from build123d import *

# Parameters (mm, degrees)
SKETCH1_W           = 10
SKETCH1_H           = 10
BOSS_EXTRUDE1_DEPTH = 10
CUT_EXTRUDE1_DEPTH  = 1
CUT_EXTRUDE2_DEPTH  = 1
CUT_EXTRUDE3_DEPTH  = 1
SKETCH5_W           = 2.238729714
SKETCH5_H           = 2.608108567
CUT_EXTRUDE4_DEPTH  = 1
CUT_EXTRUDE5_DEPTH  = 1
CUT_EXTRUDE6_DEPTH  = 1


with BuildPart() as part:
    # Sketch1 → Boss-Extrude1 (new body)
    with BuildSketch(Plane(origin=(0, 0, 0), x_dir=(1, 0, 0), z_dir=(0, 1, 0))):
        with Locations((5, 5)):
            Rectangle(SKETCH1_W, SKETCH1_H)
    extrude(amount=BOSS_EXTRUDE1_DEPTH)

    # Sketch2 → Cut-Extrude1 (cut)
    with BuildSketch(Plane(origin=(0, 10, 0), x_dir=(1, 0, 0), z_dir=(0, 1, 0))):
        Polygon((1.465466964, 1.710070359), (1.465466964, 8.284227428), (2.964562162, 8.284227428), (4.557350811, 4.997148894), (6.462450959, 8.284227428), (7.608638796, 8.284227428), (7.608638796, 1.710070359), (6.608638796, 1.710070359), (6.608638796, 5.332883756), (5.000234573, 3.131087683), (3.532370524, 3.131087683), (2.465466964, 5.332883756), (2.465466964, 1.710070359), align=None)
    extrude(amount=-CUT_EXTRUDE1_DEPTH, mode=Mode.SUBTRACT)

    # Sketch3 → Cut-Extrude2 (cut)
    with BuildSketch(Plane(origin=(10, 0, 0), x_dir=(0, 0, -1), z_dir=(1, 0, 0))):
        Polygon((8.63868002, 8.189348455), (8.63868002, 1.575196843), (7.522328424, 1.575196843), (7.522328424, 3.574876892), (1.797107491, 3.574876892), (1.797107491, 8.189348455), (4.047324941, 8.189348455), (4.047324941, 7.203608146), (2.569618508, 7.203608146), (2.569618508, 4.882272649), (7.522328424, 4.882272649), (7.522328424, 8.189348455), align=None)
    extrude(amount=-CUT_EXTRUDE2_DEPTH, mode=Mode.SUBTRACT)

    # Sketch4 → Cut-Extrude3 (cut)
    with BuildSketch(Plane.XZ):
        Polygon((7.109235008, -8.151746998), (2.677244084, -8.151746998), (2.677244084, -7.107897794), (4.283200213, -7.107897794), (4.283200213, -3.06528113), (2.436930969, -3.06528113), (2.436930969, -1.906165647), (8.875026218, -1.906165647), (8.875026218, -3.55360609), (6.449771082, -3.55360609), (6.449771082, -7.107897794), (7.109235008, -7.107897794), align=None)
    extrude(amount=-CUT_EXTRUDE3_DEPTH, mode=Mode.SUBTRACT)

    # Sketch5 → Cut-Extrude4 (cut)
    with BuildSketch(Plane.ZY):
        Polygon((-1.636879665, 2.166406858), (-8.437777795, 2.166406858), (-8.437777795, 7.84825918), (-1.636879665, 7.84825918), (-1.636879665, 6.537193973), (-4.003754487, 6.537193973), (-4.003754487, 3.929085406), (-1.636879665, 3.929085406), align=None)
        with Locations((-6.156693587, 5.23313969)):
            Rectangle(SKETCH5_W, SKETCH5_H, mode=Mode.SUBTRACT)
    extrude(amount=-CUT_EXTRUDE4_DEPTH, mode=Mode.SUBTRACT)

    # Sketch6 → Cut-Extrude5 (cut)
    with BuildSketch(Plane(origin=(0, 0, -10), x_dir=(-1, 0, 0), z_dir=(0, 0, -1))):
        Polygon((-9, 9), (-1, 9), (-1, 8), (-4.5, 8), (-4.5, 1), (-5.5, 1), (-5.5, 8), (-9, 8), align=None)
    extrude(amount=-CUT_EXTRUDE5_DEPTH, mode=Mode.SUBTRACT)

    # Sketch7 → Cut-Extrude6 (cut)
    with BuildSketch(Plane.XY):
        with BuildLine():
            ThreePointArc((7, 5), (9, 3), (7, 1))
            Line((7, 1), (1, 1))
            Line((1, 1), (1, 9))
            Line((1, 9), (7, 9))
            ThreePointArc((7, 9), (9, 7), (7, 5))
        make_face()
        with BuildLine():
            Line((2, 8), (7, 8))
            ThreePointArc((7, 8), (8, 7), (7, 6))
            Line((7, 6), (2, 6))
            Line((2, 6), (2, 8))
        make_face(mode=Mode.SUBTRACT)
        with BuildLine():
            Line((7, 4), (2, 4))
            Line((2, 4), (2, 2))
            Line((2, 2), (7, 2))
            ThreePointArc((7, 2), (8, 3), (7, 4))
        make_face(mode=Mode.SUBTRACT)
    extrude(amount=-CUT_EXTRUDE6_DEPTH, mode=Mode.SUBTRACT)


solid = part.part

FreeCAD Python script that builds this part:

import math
import FreeCAD as App
import Part
import Sketcher
Q = App.Units.Quantity


def add_polygon(sketch, points):
    """Adds a closed chain of lines whose ends are joined by coincident constraints."""
    first, n = sketch.GeometryCount, len(points)
    for a, b in zip(points, points[1:] + points[:1]):
        sketch.addGeometry(Part.LineSegment(App.Vector(*a, 0), App.Vector(*b, 0)), False)
    for i in range(n):
        sketch.addConstraint(Sketcher.Constraint("Coincident", first + i, 2, first + (i + 1) % n, 1))

doc = App.newDocument("Part")
body = doc.addObject("PartDesign::Body", "Body")

# Sketch on XZ plane
sketch1 = doc.addObject("Sketcher::SketchObject", "Sketch")
body.addObject(sketch1)
sketch1.AttachmentSupport = (doc.XZ_Plane, [""])
sketch1.MapMode = "FlatFace"
add_polygon(sketch1, [(0, -10), (0, 0), (10, 0), (10, -10)])  # lines 0-3
sketch1.addConstraint(Sketcher.Constraint("Vertical", 0))
sketch1.addConstraint(Sketcher.Constraint("Horizontal", 1))
sketch1.addConstraint(Sketcher.Constraint("Vertical", 2))
sketch1.addConstraint(Sketcher.Constraint("Horizontal", 3))
sketch1.addConstraint(Sketcher.Constraint("Coincident", 0, 2, -1, 1))
sketch1.addConstraint(Sketcher.Constraint("Equal", 3, 0))
sketch1.addConstraint(Sketcher.Constraint("DistanceX", 1, 1, 1, 2, Q("10 mm")))
pad1 = doc.addObject("PartDesign::Pad", "Pad")
body.addObject(pad1)
pad1.Profile = sketch1
pad1.Length = 10
pad1.Reversed = True

# Sketch on XZ plane
sketch2 = doc.addObject("Sketcher::SketchObject", "Sketch001")
body.addObject(sketch2)
sketch2.AttachmentSupport = (doc.XZ_Plane, [""])
sketch2.MapMode = "FlatFace"
sketch2.AttachmentOffset = App.Placement(App.Vector(0, 0, -10), App.Rotation())
add_polygon(sketch2, [(1.5, -8.3), (1.5, -1.7), (2.5, -1.7), (2.5, -5.3), (3.5, -3.1), (5, -3.1), (6.6, -5.3), (6.6, -1.7), (7.6, -1.7), (7.6, -8.3), (6.5, -8.3), (4.6, -5), (3, -8.3)])  # lines 0-12
sketch2.addConstraint(Sketcher.Constraint("Vertical", 0))
sketch2.addConstraint(Sketcher.Constraint("Horizontal", 1))
sketch2.addConstraint(Sketcher.Constraint("Vertical", 2))
sketch2.addConstraint(Sketcher.Constraint("Horizontal", 4))
sketch2.addConstraint(Sketcher.Constraint("Vertical", 6))
sketch2.addConstraint(Sketcher.Constraint("Horizontal", 7))
sketch2.addConstraint(Sketcher.Constraint("Vertical", 8))
sketch2.addConstraint(Sketcher.Constraint("Horizontal", 9))
sketch2.addConstraint(Sketcher.Constraint("Horizontal", 12))
sketch2.addConstraint(Sketcher.Constraint("Parallel", 3, 11))
sketch2.addConstraint(Sketcher.Constraint("Horizontal", 2, 2, 5, 2))
sketch2.addConstraint(Sketcher.Constraint("Horizontal", 1, 2, 6, 2))
sketch2.addConstraint(Sketcher.Constraint("Horizontal", 9, 2, 11, 2))
sketch2.addConstraint(Sketcher.Constraint("Equal", 1, 7))
sketch2.addConstraint(Sketcher.Constraint("DistanceX", 1, 1, 1, 2, Q("1 mm")))
sketch2.addConstraint(Sketcher.Constraint("DistanceX", 10, 2, 9, 2, Q("1.9051 mm")))
sketch2.addConstraint(Sketcher.Constraint("Distance", 3, Q("2.446669 mm")))
sketch2.addConstraint(Sketcher.Constraint("Distance", 10, Q("3.799249 mm")))
sketch2.addConstraint(Sketcher.Constraint("Distance", 11, Q("3.652651 mm")))
sketch2.addConstraint(Sketcher.Constraint("DistanceX", 4, 1, 4, 2, Q("1.467864 mm")))
sketch2.addConstraint(Sketcher.Constraint("DistanceX", 9, 2, 9, 1, Q("1.146188 mm")))
sketch2.addConstraint(Sketcher.Constraint("DistanceX", 12, 2, 12, 1, Q("1.499095 mm")))
sketch2.addConstraint(Sketcher.Constraint("DistanceY", 0, 1, 0, 2, Q("6.574157 mm")))
sketch2.addConstraint(Sketcher.Constraint("DistanceY", 2, 2, 2, 1, Q("3.622813 mm")))
sketch2.addConstraint(Sketcher.Constraint("DistanceY", 0, 2, -1, 1, Q("1.71007 mm")))
sketch2.addConstraint(Sketcher.Constraint("DistanceX", -1, 1, 3, 2, Q("3.532371 mm")))
pocket1 = doc.addObject("PartDesign::Pocket", "Pocket")
body.addObject(pocket1)
pocket1.Profile = sketch2
pocket1.Length = 1
pocket1.Reversed = True

# Sketch on YZ plane
sketch3 = doc.addObject("Sketcher::SketchObject", "Sketch002")
body.addObject(sketch3)
sketch3.AttachmentSupport = (doc.YZ_Plane, [""])
sketch3.MapMode = "FlatFace"
sketch3.AttachmentOffset = App.Placement(App.Vector(0, 0, 10), App.Rotation())
add_polygon(sketch3, [(1.6, -8.6), (8.2, -8.6), (8.2, -7.5), (4.9, -7.5), (4.9, -2.6), (7.2, -2.6), (7.2, -4), (8.2, -4), (8.2, -1.8), (3.6, -1.8), (3.6, -7.5), (1.6, -7.5)])  # lines 0-11
sketch3.addConstraint(Sketcher.Constraint("Horizontal", 0))
sketch3.addConstraint(Sketcher.Constraint("Vertical", 1))
sketch3.addConstraint(Sketcher.Constraint("Horizontal", 2))
sketch3.addConstraint(Sketcher.Constraint("Vertical", 3))
sketch3.addConstraint(Sketcher.Constraint("Horizontal", 4))
sketch3.addConstraint(Sketcher.Constraint("Vertical", 5))
sketch3.addConstraint(Sketcher.Constraint("Horizontal", 6))
sketch3.addConstraint(Sketcher.Constraint("Vertical", 7))
sketch3.addConstraint(Sketcher.Constraint("Horizontal", 8))
sketch3.addConstraint(Sketcher.Constraint("Vertical", 9))
sketch3.addConstraint(Sketcher.Constraint("Horizontal", 10))
sketch3.addConstraint(Sketcher.Constraint("Vertical", 11))
sketch3.addConstraint(Sketcher.Constraint("Horizontal", 2, 2, 9, 2))
sketch3.addConstraint(Sketcher.Constraint("Vertical", 1, 2, 6, 2))
sketch3.addConstraint(Sketcher.Constraint("DistanceX", 0, 1, 0, 2, Q("6.614152 mm")))
sketch3.addConstraint(Sketcher.Constraint("DistanceX", 6, 1, 6, 2, Q("0.98574 mm")))
sketch3.addConstraint(Sketcher.Constraint("DistanceX", 8, 2, 8, 1, Q("4.614472 mm")))
sketch3.addConstraint(Sketcher.Constraint("DistanceY", 1, 1, 1, 2, Q("1.116352 mm")))
sketch3.addConstraint(Sketcher.Constraint("DistanceY", 3, 1, 3, 2, Q("4.95271 mm")))
sketch3.addConstraint(Sketcher.Constraint("DistanceY", 9, 2, 9, 1, Q("5.725221 mm")))
sketch3.addConstraint(Sketcher.Constraint("DistanceX", 2, 2, 2, 1, Q("3.307076 mm")))
sketch3.addConstraint(Sketcher.Constraint("DistanceY", 5, 2, 5, 1, Q("1.477706 mm")))
sketch3.addConstraint(Sketcher.Constraint("DistanceX", -1, 1, 0, 2, Q("8.189348 mm")))
sketch3.addConstraint(Sketcher.Constraint("DistanceY", 0, 2, -1, 1, Q("8.63868 mm")))
pocket2 = doc.addObject("PartDesign::Pocket", "Pocket001")
body.addObject(pocket2)
pocket2.Profile = sketch3
pocket2.Length = 1

# Sketch on XZ plane
sketch4 = doc.addObject("Sketcher::SketchObject", "Sketch003")
body.addObject(sketch4)
sketch4.AttachmentSupport = (doc.XZ_Plane, [""])
sketch4.MapMode = "FlatFace"
add_polygon(sketch4, [(2.7, -8.2), (7.1, -8.2), (7.1, -7.1), (6.4, -7.1), (6.4, -3.6), (8.9, -3.6), (8.9, -1.9), (2.4, -1.9), (2.4, -3.1), (4.3, -3.1), (4.3, -7.1), (2.7, -7.1)])  # lines 0-11
sketch4.addConstraint(Sketcher.Constraint("Horizontal", 0))
sketch4.addConstraint(Sketcher.Constraint("Vertical", 1))
sketch4.addConstraint(Sketcher.Constraint("Horizontal", 2))
sketch4.addConstraint(Sketcher.Constraint("Vertical", 3))
sketch4.addConstraint(Sketcher.Constraint("Horizontal", 4))
sketch4.addConstraint(Sketcher.Constraint("Vertical", 5))
sketch4.addConstraint(Sketcher.Constraint("Horizontal", 6))
sketch4.addConstraint(Sketcher.Constraint("Vertical", 7))
sketch4.addConstraint(Sketcher.Constraint("Horizontal", 8))
sketch4.addConstraint(Sketcher.Constraint("Vertical", 9))
sketch4.addConstraint(Sketcher.Constraint("Horizontal", 10))
sketch4.addConstraint(Sketcher.Constraint("Vertical", 11))
sketch4.addConstraint(Sketcher.Constraint("Horizontal", 2, 2, 9, 2))
sketch4.addConstraint(Sketcher.Constraint("DistanceX", 0, 1, 0, 2, Q("4.431991 mm")))
sketch4.addConstraint(Sketcher.Constraint("DistanceX", 8, 1, 8, 2, Q("1.846269 mm")))
sketch4.addConstraint(Sketcher.Constraint("DistanceY", 1, 1, 1, 2, Q("1.043849 mm")))
sketch4.addConstraint(Sketcher.Constraint("DistanceY", 3, 1, 3, 2, Q("3.554292 mm")))
sketch4.addConstraint(Sketcher.Constraint("DistanceY", 5, 1, 5, 2, Q("1.64744 mm")))
sketch4.addConstraint(Sketcher.Constraint("DistanceX", -1, 1, 8, 2, Q("4.2832 mm")))
sketch4.addConstraint(Sketcher.Constraint("DistanceX", 2, 2, 2, 1, Q("0.659464 mm")))
sketch4.addConstraint(Sketcher.Constraint("DistanceX", 4, 1, 4, 2, Q("2.425255 mm")))
sketch4.addConstraint(Sketcher.Constraint("DistanceX", 6, 2, 6, 1, Q("6.438095 mm")))
sketch4.addConstraint(Sketcher.Constraint("DistanceY", 7, 2, 7, 1, Q("1.159115 mm")))
sketch4.addConstraint(Sketcher.Constraint("DistanceY", 7, 2, -1, 1, Q("3.065281 mm")))
pocket3 = doc.addObject("PartDesign::Pocket", "Pocket002")
body.addObject(pocket3)
pocket3.Profile = sketch4
pocket3.Length = 1

# Sketch on YZ plane
sketch5 = doc.addObject("Sketcher::SketchObject", "Sketch004")
body.addObject(sketch5)
sketch5.AttachmentSupport = (doc.YZ_Plane, [""])
sketch5.MapMode = "FlatFace"
add_polygon(sketch5, [(2.2, -8.4), (2.2, -1.6), (3.9, -1.6), (3.9, -4), (6.5, -4), (6.5, -1.6), (7.8, -1.6), (7.8, -8.4)])  # lines 0-7
add_polygon(sketch5, [(3.9, -7.3), (6.5, -7.3), (6.5, -5), (3.9, -5)])  # lines 8-11
sketch5.addConstraint(Sketcher.Constraint("Vertical", 0))
sketch5.addConstraint(Sketcher.Constraint("Horizontal", 1))
sketch5.addConstraint(Sketcher.Constraint("Vertical", 2))
sketch5.addConstraint(Sketcher.Constraint("Horizontal", 3))
sketch5.addConstraint(Sketcher.Constraint("Vertical", 4))
sketch5.addConstraint(Sketcher.Constraint("Horizontal", 5))
sketch5.addConstraint(Sketcher.Constraint("Vertical", 6))
sketch5.addConstraint(Sketcher.Constraint("Horizontal", 7))
sketch5.addConstraint(Sketcher.Constraint("Horizontal", 8))
sketch5.addConstraint(Sketcher.Constraint("Vertical", 9))
sketch5.addConstraint(Sketcher.Constraint("Horizontal", 10))
sketch5.addConstraint(Sketcher.Constraint("Vertical", 11))
sketch5.addConstraint(Sketcher.Constraint("Horizontal", 1, 2, 4, 2))
sketch5.addConstraint(Sketcher.Constraint("Vertical", 4, 2, 8, 2))
sketch5.addConstraint(Sketcher.Constraint("Vertical", 2, 2, 10, 2))
sketch5.addConstraint(Sketcher.Constraint("DistanceY", 0, 1, 0, 2, Q("6.800898 mm")))
sketch5.addConstraint(Sketcher.Constraint("DistanceX", 1, 1, 1, 2, Q("1.762679 mm")))
sketch5.addConstraint(Sketcher.Constraint("DistanceX", 3, 1, 3, 2, Q("2.608109 mm")))
sketch5.addConstraint(Sketcher.Constraint("DistanceY", 9, 1, 9, 2, Q("2.23873 mm")))
sketch5.addConstraint(Sketcher.Constraint("DistanceX", 5, 1, 5, 2, Q("1.311065 mm")))
sketch5.addConstraint(Sketcher.Constraint("DistanceY", 2, 2, 2, 1, Q("2.366875 mm")))
sketch5.addConstraint(Sketcher.Constraint("DistanceY", 0, 2, -1, 1, Q("1.63688 mm")))
sketch5.addConstraint(Sketcher.Constraint("DistanceX", -1, 1, 5, 2, Q("7.848259 mm")))
sketch5.addConstraint(Sketcher.Constraint("DistanceY", 8, 2, -1, 1, Q("7.276058 mm")))
pocket4 = doc.addObject("PartDesign::Pocket", "Pocket003")
body.addObject(pocket4)
pocket4.Profile = sketch5
pocket4.Length = 1
pocket4.Reversed = True

# Sketch on XY plane
sketch6 = doc.addObject("Sketcher::SketchObject", "Sketch005")
body.addObject(sketch6)
sketch6.AttachmentSupport = (doc.XY_Plane, [""])
sketch6.MapMode = "FlatFace"
sketch6.AttachmentOffset = App.Placement(App.Vector(0, 0, -10), App.Rotation())
add_polygon(sketch6, [(1, 9), (9, 9), (9, 8), (5.5, 8), (5.5, 1), (4.5, 1), (4.5, 8), (1, 8)])  # lines 0-7
sketch6.addConstraint(Sketcher.Constraint("Horizontal", 0))
sketch6.addConstraint(Sketcher.Constraint("Vertical", 1))
sketch6.addConstraint(Sketcher.Constraint("Horizontal", 2))
sketch6.addConstraint(Sketcher.Constraint("Vertical", 3))
sketch6.addConstraint(Sketcher.Constraint("Horizontal", 4))
sketch6.addConstraint(Sketcher.Constraint("Vertical", 5))
sketch6.addConstraint(Sketcher.Constraint("Horizontal", 6))
sketch6.addConstraint(Sketcher.Constraint("Vertical", 7))
sketch6.addConstraint(Sketcher.Constraint("Horizontal", 2, 2, 5, 2))
sketch6.addConstraint(Sketcher.Constraint("Equal", 2, 6))
sketch6.addConstraint(Sketcher.Constraint("Equal", 4, 1))
sketch6.addConstraint(Sketcher.Constraint("DistanceX", 0, 1, 0, 2, Q("8 mm")))
sketch6.addConstraint(Sketcher.Constraint("DistanceX", 4, 2, 4, 1, Q("1 mm")))
sketch6.addConstraint(Sketcher.Constraint("DistanceY", 3, 2, 3, 1, Q("7 mm")))
sketch6.addConstraint(Sketcher.Constraint("DistanceX", -1, 1, 0, 2, Q("9 mm")))
sketch6.addConstraint(Sketcher.Constraint("DistanceY", -1, 1, 0, 2, Q("9 mm")))
pocket5 = doc.addObject("PartDesign::Pocket", "Pocket004")
body.addObject(pocket5)
pocket5.Profile = sketch6
pocket5.Length = 1
pocket5.Reversed = True

# Sketch on XY plane
sketch7 = doc.addObject("Sketcher::SketchObject", "Sketch006")
body.addObject(sketch7)
sketch7.AttachmentSupport = (doc.XY_Plane, [""])
sketch7.MapMode = "FlatFace"
sketch7.addGeometry(Part.ArcOfCircle(Part.Circle(App.Vector(7, 3, 0), App.Vector(0, 0, 1), 2), math.radians(-90), math.radians(90)), False)
sketch7.addGeometry(Part.ArcOfCircle(Part.Circle(App.Vector(7, 7, 0), App.Vector(0, 0, 1), 2), math.radians(-90), math.radians(90)), False)
sketch7.addGeometry(Part.LineSegment(App.Vector(7, 9, 0), App.Vector(1, 9, 0)), False)
sketch7.addGeometry(Part.LineSegment(App.Vector(1, 9, 0), App.Vector(1, 1, 0)), False)
sketch7.addGeometry(Part.LineSegment(App.Vector(1, 1, 0), App.Vector(7, 1, 0)), False)
sketch7.addGeometry(Part.ArcOfCircle(Part.Circle(App.Vector(7, 3, 0), App.Vector(0, 0, 1), 1), math.radians(-90), math.radians(90)), False)
sketch7.addGeometry(Part.LineSegment(App.Vector(7, 2, 0), App.Vector(2, 2, 0)), False)
sketch7.addGeometry(Part.LineSegment(App.Vector(2, 2, 0), App.Vector(2, 4, 0)), False)
sketch7.addGeometry(Part.LineSegment(App.Vector(2, 4, 0), App.Vector(7, 4, 0)), False)
sketch7.addGeometry(Part.LineSegment(App.Vector(2, 8, 0), App.Vector(7, 8, 0)), False)
sketch7.addGeometry(Part.ArcOfCircle(Part.Circle(App.Vector(7, 7, 0), App.Vector(0, 0, 1), 1), math.radians(-90), math.radians(90)), False)
sketch7.addGeometry(Part.LineSegment(App.Vector(7, 6, 0), App.Vector(2, 6, 0)), False)
sketch7.addGeometry(Part.LineSegment(App.Vector(2, 6, 0), App.Vector(2, 8, 0)), False)
sketch7.addConstraint(Sketcher.Constraint("Tangent", 0, 2, 1, 1))
sketch7.addConstraint(Sketcher.Constraint("Tangent", 1, 2, 2, 1))
sketch7.addConstraint(Sketcher.Constraint("Coincident", 2, 2, 3, 1))
sketch7.addConstraint(Sketcher.Constraint("Coincident", 3, 2, 4, 1))
sketch7.addConstraint(Sketcher.Constraint("Tangent", 4, 2, 0, 1))
sketch7.addConstraint(Sketcher.Constraint("Tangent", 5, 1, 6, 1))
sketch7.addConstraint(Sketcher.Constraint("Coincident", 6, 2, 7, 1))
sketch7.addConstraint(Sketcher.Constraint("Coincident", 7, 2, 8, 1))
sketch7.addConstraint(Sketcher.Constraint("Tangent", 8, 2, 5, 2))
sketch7.addConstraint(Sketcher.Constraint("Tangent", 9, 2, 10, 2))
sketch7.addConstraint(Sketcher.Constraint("Tangent", 10, 1, 11, 1))
sketch7.addConstraint(Sketcher.Constraint("Coincident", 11, 2, 12, 1))
sketch7.addConstraint(Sketcher.Constraint("Coincident", 12, 2, 9, 1))
sketch7.addConstraint(Sketcher.Constraint("Horizontal", 2))
sketch7.addConstraint(Sketcher.Constraint("Vertical", 3))
sketch7.addConstraint(Sketcher.Constraint("Horizontal", 4))
sketch7.addConstraint(Sketcher.Constraint("Horizontal", 6))
sketch7.addConstraint(Sketcher.Constraint("Vertical", 7))
sketch7.addConstraint(Sketcher.Constraint("Horizontal", 8))
sketch7.addConstraint(Sketcher.Constraint("Horizontal", 9))
sketch7.addConstraint(Sketcher.Constraint("Horizontal", 11))
sketch7.addConstraint(Sketcher.Constraint("Vertical", 12))
sketch7.addConstraint(Sketcher.Constraint("Coincident", 5, 3, 0, 3))
sketch7.addConstraint(Sketcher.Constraint("Coincident", 10, 3, 1, 3))
sketch7.addConstraint(Sketcher.Constraint("Equal", 0, 1))
sketch7.addConstraint(Sketcher.Constraint("Equal", 5, 10))
sketch7.addConstraint(Sketcher.Constraint("Vertical", 0, 3, 1, 3))
sketch7.addConstraint(Sketcher.Constraint("Vertical", 7, 2, 11, 2))
sketch7.addConstraint(Sketcher.Constraint("Radius", 0, Q("2 mm")))
sketch7.addConstraint(Sketcher.Constraint("Radius", 5, Q("1 mm")))
sketch7.addConstraint(Sketcher.Constraint("DistanceX", 2, 2, 2, 1, Q("6 mm")))
sketch7.addConstraint(Sketcher.Constraint("DistanceX", 6, 2, 6, 1, Q("5 mm")))
sketch7.addConstraint(Sketcher.Constraint("DistanceX", -1, 1, 0, 3, Q("7 mm")))
sketch7.addConstraint(Sketcher.Constraint("DistanceY", -1, 1, 0, 3, Q("3 mm")))
pocket6 = doc.addObject("PartDesign::Pocket", "Pocket005")
body.addObject(pocket6)
pocket6.Profile = sketch7
pocket6.Length = 1

doc.recompute()
